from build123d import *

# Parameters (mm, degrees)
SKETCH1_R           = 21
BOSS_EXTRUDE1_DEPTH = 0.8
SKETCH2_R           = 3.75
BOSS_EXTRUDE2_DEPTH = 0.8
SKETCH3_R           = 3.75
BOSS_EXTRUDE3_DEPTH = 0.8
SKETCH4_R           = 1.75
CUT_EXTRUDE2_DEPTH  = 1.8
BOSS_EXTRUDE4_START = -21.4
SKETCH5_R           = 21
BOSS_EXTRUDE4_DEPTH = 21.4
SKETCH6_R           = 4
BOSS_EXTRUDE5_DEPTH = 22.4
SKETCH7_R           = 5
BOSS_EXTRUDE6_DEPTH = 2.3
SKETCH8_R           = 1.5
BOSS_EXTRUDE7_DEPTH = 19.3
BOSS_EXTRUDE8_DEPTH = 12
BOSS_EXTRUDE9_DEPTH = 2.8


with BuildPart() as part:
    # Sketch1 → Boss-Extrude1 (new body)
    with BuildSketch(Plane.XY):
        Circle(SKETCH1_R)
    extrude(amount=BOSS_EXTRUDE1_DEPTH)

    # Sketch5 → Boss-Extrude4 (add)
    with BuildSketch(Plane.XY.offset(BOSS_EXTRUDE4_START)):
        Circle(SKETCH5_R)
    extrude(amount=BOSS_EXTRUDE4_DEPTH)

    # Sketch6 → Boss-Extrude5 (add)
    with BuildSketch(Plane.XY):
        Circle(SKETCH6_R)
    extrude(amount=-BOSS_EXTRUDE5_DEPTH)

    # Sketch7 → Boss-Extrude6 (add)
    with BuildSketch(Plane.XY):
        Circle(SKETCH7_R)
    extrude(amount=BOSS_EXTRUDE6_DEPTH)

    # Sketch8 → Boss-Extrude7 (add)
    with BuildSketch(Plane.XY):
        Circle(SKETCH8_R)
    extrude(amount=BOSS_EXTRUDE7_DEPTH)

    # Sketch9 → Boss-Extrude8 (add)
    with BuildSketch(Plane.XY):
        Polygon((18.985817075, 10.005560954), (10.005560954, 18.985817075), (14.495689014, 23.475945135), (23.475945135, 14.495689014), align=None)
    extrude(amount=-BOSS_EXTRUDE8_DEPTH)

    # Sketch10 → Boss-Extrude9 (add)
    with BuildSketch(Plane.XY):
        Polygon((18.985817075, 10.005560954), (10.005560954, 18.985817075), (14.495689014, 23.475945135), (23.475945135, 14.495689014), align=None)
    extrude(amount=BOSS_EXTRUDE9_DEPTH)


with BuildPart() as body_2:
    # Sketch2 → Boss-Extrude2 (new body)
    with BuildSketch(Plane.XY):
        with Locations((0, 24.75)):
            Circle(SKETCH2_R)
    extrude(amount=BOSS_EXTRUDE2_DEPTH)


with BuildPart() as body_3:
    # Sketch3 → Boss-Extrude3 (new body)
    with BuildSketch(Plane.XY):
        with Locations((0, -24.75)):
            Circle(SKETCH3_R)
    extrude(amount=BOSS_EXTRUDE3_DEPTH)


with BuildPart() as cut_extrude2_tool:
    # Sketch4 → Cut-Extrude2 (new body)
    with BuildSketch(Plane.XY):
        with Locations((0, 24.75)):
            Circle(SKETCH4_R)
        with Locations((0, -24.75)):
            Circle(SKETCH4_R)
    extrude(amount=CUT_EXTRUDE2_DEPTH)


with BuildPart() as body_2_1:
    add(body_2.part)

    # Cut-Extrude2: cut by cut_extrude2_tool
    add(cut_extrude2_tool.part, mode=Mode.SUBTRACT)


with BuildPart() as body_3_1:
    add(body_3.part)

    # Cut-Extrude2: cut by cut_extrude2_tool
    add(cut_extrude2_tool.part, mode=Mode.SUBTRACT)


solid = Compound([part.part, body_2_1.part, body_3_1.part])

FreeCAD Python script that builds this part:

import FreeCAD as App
import Part
import Sketcher
Q = App.Units.Quantity

doc = App.newDocument("Part")
body = doc.addObject("PartDesign::Body", "Body")

sketch1 = body.newObject("Sketcher::SketchObject", "Sketch")
sketch1.AttachmentSupport = (doc.getObject("XY_Plane"), [""])
sketch1.MapMode = "FlatFace"
sketch1.addGeometry(Part.Circle(App.Vector(0, 0, 0), App.Vector(0, 0, 1), 21), False)
sketch1.addConstraint([
    Sketcher.Constraint("Coincident", 0, 3, -1, 1),
    Sketcher.Constraint("Diameter", 0, 42.0),
])
pad1 = body.newObject("PartDesign::Pad", "Pad")
pad1.Profile = sketch1
pad1.Length = 0.8

sketch2 = body.newObject("Sketcher::SketchObject", "Sketch001")
sketch2.AttachmentSupport = (doc.getObject("XY_Plane"), [""])
sketch2.MapMode = "FlatFace"
sketch2.AttachmentOffset = App.Placement(App.Vector(0, 0, -21.4), App.Rotation())
sketch2.addGeometry(Part.Circle(App.Vector(0, 0, 0), App.Vector(0, 0, 1), 21), False)
sketch2.addConstraint([
    Sketcher.Constraint("Coincident", 0, 3, -1, 1),
    Sketcher.Constraint("Diameter", 0, 42.0),
])
pad2 = body.newObject("PartDesign::Pad", "Pad001")
pad2.Profile = sketch2
pad2.Length = 21.4

sketch3 = body.newObject("Sketcher::SketchObject", "Sketch002")
sketch3.AttachmentSupport = (doc.getObject("XY_Plane"), [""])
sketch3.MapMode = "FlatFace"
sketch3.addGeometry(Part.Circle(App.Vector(0, 0, 0), App.Vector(0, 0, 1), 4), False)
sketch3.addConstraint([
    Sketcher.Constraint("Coincident", 0, 3, -1, 1),
    Sketcher.Constraint("Diameter", 0, 8.0),
])
pad3 = body.newObject("PartDesign::Pad", "Pad002")
pad3.Profile = sketch3
pad3.Length = 22.4
pad3.Reversed = True

sketch4 = body.newObject("Sketcher::SketchObject", "Sketch003")
sketch4.AttachmentSupport = (doc.getObject("XY_Plane"), [""])
sketch4.MapMode = "FlatFace"
sketch4.addGeometry(Part.Circle(App.Vector(0, 0, 0), App.Vector(0, 0, 1), 5), False)
sketch4.addConstraint([
    Sketcher.Constraint("Coincident", 0, 3, -1, 1),
    Sketcher.Constraint("Diameter", 0, 10.0),
])
pad4 = body.newObject("PartDesign::Pad", "Pad003")
pad4.Profile = sketch4
pad4.Length = 2.3

sketch5 = body.newObject("Sketcher::SketchObject", "Sketch004")
sketch5.AttachmentSupport = (doc.getObject("XY_Plane"), [""])
sketch5.MapMode = "FlatFace"
sketch5.addGeometry(Part.Circle(App.Vector(0, 0, 0), App.Vector(0, 0, 1), 1.5), False)
sketch5.addConstraint([
    Sketcher.Constraint("Coincident", 0, 3, -1, 1),
    Sketcher.Constraint("Diameter", 0, 3.0),
])
pad5 = body.newObject("PartDesign::Pad", "Pad004")
pad5.Profile = sketch5
pad5.Length = 19.3

sketch6 = body.newObject("Sketcher::SketchObject", "Sketch005")
sketch6.AttachmentSupport = (doc.getObject("XY_Plane"), [""])
sketch6.MapMode = "FlatFace"
sketch6.addGeometry([
    Part.LineSegment(App.Vector(10.005561, 18.985817, 0), App.Vector(18.985817, 10.005561, 0)),
    Part.LineSegment(App.Vector(18.985817, 10.005561, 0), App.Vector(23.475945, 14.495689, 0)),
    Part.LineSegment(App.Vector(23.475945, 14.495689, 0), App.Vector(14.495689, 23.475945, 0)),
    Part.LineSegment(App.Vector(14.495689, 23.475945, 0), App.Vector(10.005561, 18.985817, 0)),
], False)
sketch6.addConstraint([
    Sketcher.Constraint("Coincident", 0, 2, 1, 1),
    Sketcher.Constraint("Coincident", 1, 2, 2, 1),
    Sketcher.Constraint("Coincident", 2, 2, 3, 1),
    Sketcher.Constraint("Coincident", 3, 2, 0, 1),
    Sketcher.Constraint("Perpendicular", 0, 1),
    Sketcher.Constraint("Perpendicular", 1, 2),
    Sketcher.Constraint("Perpendicular", 2, 3),
    Sketcher.Constraint("Angle", 0, Q("-45 deg")),
    Sketcher.Constraint("Distance", 0, 12.7),
    Sketcher.Constraint("Distance", 1, 6.35),
    Sketcher.Constraint("DistanceY", -1, 1, 0, 2, 10.005561),
    Sketcher.Constraint("DistanceX", -1, 1, 2, 2, 14.495689),
])
pad6 = body.newObject("PartDesign::Pad", "Pad005")
pad6.Profile = sketch6
pad6.Length = 12
pad6.Reversed = True

sketch7 = body.newObject("Sketcher::SketchObject", "Sketch006")
sketch7.AttachmentSupport = (doc.getObject("XY_Plane"), [""])
sketch7.MapMode = "FlatFace"
sketch7.addGeometry([
    Part.LineSegment(App.Vector(10.005561, 18.985817, 0), App.Vector(18.985817, 10.005561, 0)),
    Part.LineSegment(App.Vector(18.985817, 10.005561, 0), App.Vector(23.475945, 14.495689, 0)),
    Part.LineSegment(App.Vector(23.475945, 14.495689, 0), App.Vector(14.495689, 23.475945, 0)),
    Part.LineSegment(App.Vector(14.495689, 23.475945, 0), App.Vector(10.005561, 18.985817, 0)),
], False)
sketch7.addConstraint([
    Sketcher.Constraint("Coincident", 0, 2, 1, 1),
    Sketcher.Constraint("Coincident", 1, 2, 2, 1),
    Sketcher.Constraint("Coincident", 2, 2, 3, 1),
    Sketcher.Constraint("Coincident", 3, 2, 0, 1),
    Sketcher.Constraint("Perpendicular", 0, 1),
    Sketcher.Constraint("Perpendicular", 1, 2),
    Sketcher.Constraint("Perpendicular", 2, 3),
    Sketcher.Constraint("Angle", 0, Q("-45 deg")),
    Sketcher.Constraint("Distance", 0, 12.7),
    Sketcher.Constraint("Distance", 1, 6.35),
    Sketcher.Constraint("DistanceY", -1, 1, 0, 2, 10.005561),
    Sketcher.Constraint("DistanceX", -1, 1, 2, 2, 14.495689),
])
pad7 = body.newObject("PartDesign::Pad", "Pad006")
pad7.Profile = sketch7
pad7.Length = 2.8
body2 = doc.addObject("PartDesign::Body", "Body001")

sketch8 = body2.newObject("Sketcher::SketchObject", "Sketch007")
sketch8.AttachmentSupport = (doc.getObject("XY_Plane001"), [""])
sketch8.MapMode = "FlatFace"
sketch8.addGeometry(Part.Circle(App.Vector(0, 24.75, 0), App.Vector(0, 0, 1), 3.75), False)
sketch8.addConstraint([
    Sketcher.Constraint("PointOnObject", 0, 3, -2),
    Sketcher.Constraint("Diameter", 0, 7.5),
    Sketcher.Constraint("DistanceY", -1, 1, 0, 3, 24.75),
])
pad8 = body2.newObject("PartDesign::Pad", "Pad007")
pad8.Profile = sketch8
pad8.Length = 0.8
body3 = doc.addObject("PartDesign::Body", "Body002")

sketch9 = body3.newObject("Sketcher::SketchObject", "Sketch008")
sketch9.AttachmentSupport = (doc.getObject("XY_Plane002"), [""])
sketch9.MapMode = "FlatFace"
sketch9.addGeometry(Part.Circle(App.Vector(0, -24.75, 0), App.Vector(0, 0, 1), 3.75), False)
sketch9.addConstraint([
    Sketcher.Constraint("PointOnObject", 0, 3, -2),
    Sketcher.Constraint("Diameter", 0, 7.5),
    Sketcher.Constraint("DistanceY", 0, 3, -1, 1, 24.75),
])
pad9 = body3.newObject("PartDesign::Pad", "Pad008")
pad9.Profile = sketch9
pad9.Length = 0.8
body4 = doc.addObject("PartDesign::Body", "Body003")
body4.AllowCompound = True

sketch10 = body4.newObject("Sketcher::SketchObject", "Sketch009")
sketch10.AttachmentSupport = (doc.getObject("XY_Plane003"), [""])
sketch10.MapMode = "FlatFace"
sketch10.addGeometry([
    Part.Circle(App.Vector(0, 24.75, 0), App.Vector(0, 0, 1), 1.75),
    Part.Circle(App.Vector(0, -24.75, 0), App.Vector(0, 0, 1), 1.75),
], False)
sketch10.addConstraint([
    Sketcher.Constraint("Equal", 0, 1),
    Sketcher.Constraint("Symmetric", 0, 3, 1, 3, -1, 1),
    Sketcher.Constraint("PointOnObject", 0, 3, -2),
    Sketcher.Constraint("Diameter", 0, 3.5),
    Sketcher.Constraint("DistanceY", 1, 3, 0, 3, 49.5),
])
pad10 = body4.newObject("PartDesign::Pad", "Pad009")
pad10.Profile = sketch10
pad10.Length = 1.8
doc.recompute()

body5 = doc.addObject("PartDesign::Body", "Body004")
body5.BaseFeature = body4
boolean = body2.newObject("PartDesign::Boolean", "Boolean")
boolean.Type = "Cut"
boolean.addObjects([body5])
doc.recompute()

boolean2 = body3.newObject("PartDesign::Boolean", "Boolean001")
boolean2.Type = "Cut"
boolean2.addObjects([body4])

doc.recompute()
